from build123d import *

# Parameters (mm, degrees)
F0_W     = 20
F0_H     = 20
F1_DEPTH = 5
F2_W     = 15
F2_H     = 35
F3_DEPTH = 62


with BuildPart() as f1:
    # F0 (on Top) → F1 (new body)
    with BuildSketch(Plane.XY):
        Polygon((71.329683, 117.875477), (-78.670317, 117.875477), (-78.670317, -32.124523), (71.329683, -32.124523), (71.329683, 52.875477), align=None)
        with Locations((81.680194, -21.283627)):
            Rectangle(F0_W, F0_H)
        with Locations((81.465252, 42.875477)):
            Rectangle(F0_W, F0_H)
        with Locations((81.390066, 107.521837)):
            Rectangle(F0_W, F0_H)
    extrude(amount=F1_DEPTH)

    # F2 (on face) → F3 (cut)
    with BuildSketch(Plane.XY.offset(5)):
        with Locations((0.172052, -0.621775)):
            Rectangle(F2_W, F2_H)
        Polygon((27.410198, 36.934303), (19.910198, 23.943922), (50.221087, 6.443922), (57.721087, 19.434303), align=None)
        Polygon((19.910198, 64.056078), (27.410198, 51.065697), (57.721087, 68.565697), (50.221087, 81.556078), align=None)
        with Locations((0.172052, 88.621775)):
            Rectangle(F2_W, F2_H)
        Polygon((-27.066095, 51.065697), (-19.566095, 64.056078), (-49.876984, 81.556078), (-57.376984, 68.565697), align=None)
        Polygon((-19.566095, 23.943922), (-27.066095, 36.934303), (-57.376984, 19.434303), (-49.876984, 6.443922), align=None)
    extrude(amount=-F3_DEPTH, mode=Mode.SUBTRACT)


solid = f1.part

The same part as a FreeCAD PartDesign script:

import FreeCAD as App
import Part
import Sketcher
Q = App.Units.Quantity


def add_polygon(sketch, points):
    """Adds a closed chain of lines whose ends are joined by coincident constraints."""
    first, n = sketch.GeometryCount, len(points)
    for a, b in zip(points, points[1:] + points[:1]):
        sketch.addGeometry(Part.LineSegment(App.Vector(*a, 0), App.Vector(*b, 0)), False)
    for i in range(n):
        sketch.addConstraint(Sketcher.Constraint("Coincident", first + i, 2, first + (i + 1) % n, 1))

doc = App.newDocument("Part")
body = doc.addObject("PartDesign::Body", "Body")
body.AllowCompound = True

# Sketch on XY plane
sketch1 = body.newObject("Sketcher::SketchObject", "Sketch")
sketch1.AttachmentSupport = (doc.getObject("XY_Plane"), [""])
sketch1.MapMode = "FlatFace"
add_polygon(sketch1, [(71, 118), (-79, 118), (-79, -32), (71, -32)])  # lines 0-3
add_polygon(sketch1, [(72, -11), (72, -31), (92, -31), (92, -11)])  # lines 4-7
add_polygon(sketch1, [(71, 53), (71, 33), (91, 33), (91, 53)])  # lines 8-11
add_polygon(sketch1, [(71, 118), (71, 98), (91, 98), (91, 118)])  # lines 12-15
sketch1.addConstraint(Sketcher.Constraint("Horizontal", 0))
sketch1.addConstraint(Sketcher.Constraint("Vertical", 1))
sketch1.addConstraint(Sketcher.Constraint("Horizontal", 2))
sketch1.addConstraint(Sketcher.Constraint("Vertical", 3))
sketch1.addConstraint(Sketcher.Constraint("Vertical", 4))
sketch1.addConstraint(Sketcher.Constraint("Horizontal", 5))
sketch1.addConstraint(Sketcher.Constraint("Vertical", 6))
sketch1.addConstraint(Sketcher.Constraint("Horizontal", 7))
sketch1.addConstraint(Sketcher.Constraint("Vertical", 8))
sketch1.addConstraint(Sketcher.Constraint("Horizontal", 9))
sketch1.addConstraint(Sketcher.Constraint("Vertical", 10))
sketch1.addConstraint(Sketcher.Constraint("Horizontal", 11))
sketch1.addConstraint(Sketcher.Constraint("Vertical", 12))
sketch1.addConstraint(Sketcher.Constraint("Horizontal", 13))
sketch1.addConstraint(Sketcher.Constraint("Vertical", 14))
sketch1.addConstraint(Sketcher.Constraint("Horizontal", 15))
sketch1.addConstraint(Sketcher.Constraint("Equal", 7, 9))
sketch1.addConstraint(Sketcher.Constraint("Equal", 11, 13))
sketch1.addConstraint(Sketcher.Constraint("Equal", 2, 1))
sketch1.addConstraint(Sketcher.Constraint("Equal", 15, 4))
sketch1.addConstraint(Sketcher.Constraint("Equal", 6, 8))
sketch1.addConstraint(Sketcher.Constraint("Equal", 10, 12))
sketch1.addConstraint(Sketcher.Constraint("DistanceX", 0, 2, 0, 1, Q("150 mm")))
sketch1.addConstraint(Sketcher.Constraint("DistanceX", 5, 1, 5, 2, Q("20 mm")))
sketch1.addConstraint(Sketcher.Constraint("DistanceY", 2, 2, 8, 2, Q("65 mm")))
sketch1.addConstraint(Sketcher.Constraint("DistanceX", 2, 2, 4, 2, Q("0.350511 mm")))
sketch1.addConstraint(Sketcher.Constraint("DistanceX", 8, 2, 7, 2, Q("0.214942 mm")))
sketch1.addConstraint(Sketcher.Constraint("DistanceY", 12, 2, 3, 2, Q("20.35364 mm")))
sketch1.addConstraint(Sketcher.Constraint("DistanceX", 0, 2, -1, 1, Q("78.670317 mm")))
sketch1.addConstraint(Sketcher.Constraint("DistanceY", -1, 1, 0, 2, Q("117.875477 mm")))
sketch1.addConstraint(Sketcher.Constraint("DistanceY", 4, 2, -1, 1, Q("31.283627 mm")))
sketch1.addConstraint(Sketcher.Constraint("DistanceX", -1, 1, 12, 2, Q("71.390066 mm")))
pad1 = body.newObject("PartDesign::Pad", "Pad")
pad1.Profile = sketch1
pad1.Length = 5

# Sketch on XY plane
sketch2 = body.newObject("Sketcher::SketchObject", "Sketch001")
sketch2.AttachmentSupport = (doc.getObject("XY_Plane"), [""])
sketch2.MapMode = "FlatFace"
sketch2.AttachmentOffset = App.Placement(App.Vector(0, 0, 5), App.Rotation())
add_polygon(sketch2, [(-7, 17), (-7, -18), (8, -18), (8, 17)])  # lines 0-3
add_polygon(sketch2, [(27, 37), (20, 24), (50, 6), (58, 19)])  # lines 4-7
add_polygon(sketch2, [(20, 64), (27, 51), (58, 69), (50, 82)])  # lines 8-11
add_polygon(sketch2, [(-7, 106), (-7, 71), (8, 71), (8, 106)])  # lines 12-15
add_polygon(sketch2, [(-27, 51), (-20, 64), (-50, 82), (-57, 69)])  # lines 16-19
add_polygon(sketch2, [(-20, 24), (-27, 37), (-57, 19), (-50, 6)])  # lines 20-23
sketch2.addConstraint(Sketcher.Constraint("Vertical", 0))
sketch2.addConstraint(Sketcher.Constraint("Horizontal", 1))
sketch2.addConstraint(Sketcher.Constraint("Vertical", 2))
sketch2.addConstraint(Sketcher.Constraint("Horizontal", 3))
sketch2.addConstraint(Sketcher.Constraint("Vertical", 12))
sketch2.addConstraint(Sketcher.Constraint("Horizontal", 13))
sketch2.addConstraint(Sketcher.Constraint("Vertical", 14))
sketch2.addConstraint(Sketcher.Constraint("Horizontal", 15))
sketch2.addConstraint(Sketcher.Constraint("Perpendicular", 4, 5))
sketch2.addConstraint(Sketcher.Constraint("Perpendicular", 5, 6))
sketch2.addConstraint(Sketcher.Constraint("Perpendicular", 6, 7))
sketch2.addConstraint(Sketcher.Constraint("Perpendicular", 8, 9))
sketch2.addConstraint(Sketcher.Constraint("Perpendicular", 9, 10))
sketch2.addConstraint(Sketcher.Constraint("Perpendicular", 10, 11))
sketch2.addConstraint(Sketcher.Constraint("Perpendicular", 7, 16))
sketch2.addConstraint(Sketcher.Constraint("Perpendicular", 16, 17))
sketch2.addConstraint(Sketcher.Constraint("Perpendicular", 17, 18))
sketch2.addConstraint(Sketcher.Constraint("Perpendicular", 18, 19))
sketch2.addConstraint(Sketcher.Constraint("Perpendicular", 11, 20))
sketch2.addConstraint(Sketcher.Constraint("Perpendicular", 20, 21))
sketch2.addConstraint(Sketcher.Constraint("Perpendicular", 21, 22))
sketch2.addConstraint(Sketcher.Constraint("Perpendicular", 22, 23))
sketch2.addConstraint(Sketcher.Constraint("Horizontal", 11, 2, 16, 2))
sketch2.addConstraint(Sketcher.Constraint("Horizontal", 10, 2, 17, 2))
sketch2.addConstraint(Sketcher.Constraint("Horizontal", 9, 2, 18, 2))
sketch2.addConstraint(Sketcher.Constraint("Horizontal", 7, 2, 20, 2))
sketch2.addConstraint(Sketcher.Constraint("Horizontal", 6, 2, 21, 2))
sketch2.addConstraint(Sketcher.Constraint("Horizontal", 5, 2, 22, 2))
sketch2.addConstraint(Sketcher.Constraint("Vertical", 7, 2, 8, 2))
sketch2.addConstraint(Sketcher.Constraint("Vertical", 6, 2, 9, 2))
sketch2.addConstraint(Sketcher.Constraint("Vertical", 5, 2, 10, 2))
sketch2.addConstraint(Sketcher.Constraint("Vertical", 3, 2, 12, 2))
sketch2.addConstraint(Sketcher.Constraint("Vertical", 2, 2, 13, 2))
sketch2.addConstraint(Sketcher.Constraint("Vertical", 19, 2, 20, 2))
sketch2.addConstraint(Sketcher.Constraint("Vertical", 18, 2, 21, 2))
sketch2.addConstraint(Sketcher.Constraint("Equal", 2, 12))
sketch2.addConstraint(Sketcher.Constraint("DistanceX", 1, 1, 1, 2, Q("15 mm")))
sketch2.addConstraint(Sketcher.Constraint("DistanceY", 0, 2, 0, 1, Q("35 mm")))
sketch2.addConstraint(Sketcher.Constraint("Angle", 4, Q("-120 deg")))
sketch2.addConstraint(Sketcher.Constraint("Distance", 4, Q("15 mm")))
sketch2.addConstraint(Sketcher.Constraint("Distance", 5, Q("35 mm")))
sketch2.addConstraint(Sketcher.Constraint("DistanceX", -1, 1, 4, 2, Q("19.910198 mm")))
sketch2.addConstraint(Sketcher.Constraint("DistanceY", -1, 1, 5, 2, Q("6.443922 mm")))
sketch2.addConstraint(Sketcher.Constraint("DistanceY", -1, 1, 10, 2, Q("81.556078 mm")))
sketch2.addConstraint(Sketcher.Constraint("DistanceY", 3, 2, 12, 2, Q("54.24355 mm")))
sketch2.addConstraint(Sketcher.Constraint("DistanceX", 0, 2, -1, 1, Q("7.327948 mm")))
sketch2.addConstraint(Sketcher.Constraint("DistanceY", 0, 2, -1, 1, Q("18.121775 mm")))
sketch2.addConstraint(Sketcher.Constraint("DistanceX", 16, 2, -1, 1, Q("19.566095 mm")))
pocket1 = body.newObject("PartDesign::Pocket", "Pocket")
pocket1.Profile = sketch2
pocket1.Length = 62

doc.recompute()
